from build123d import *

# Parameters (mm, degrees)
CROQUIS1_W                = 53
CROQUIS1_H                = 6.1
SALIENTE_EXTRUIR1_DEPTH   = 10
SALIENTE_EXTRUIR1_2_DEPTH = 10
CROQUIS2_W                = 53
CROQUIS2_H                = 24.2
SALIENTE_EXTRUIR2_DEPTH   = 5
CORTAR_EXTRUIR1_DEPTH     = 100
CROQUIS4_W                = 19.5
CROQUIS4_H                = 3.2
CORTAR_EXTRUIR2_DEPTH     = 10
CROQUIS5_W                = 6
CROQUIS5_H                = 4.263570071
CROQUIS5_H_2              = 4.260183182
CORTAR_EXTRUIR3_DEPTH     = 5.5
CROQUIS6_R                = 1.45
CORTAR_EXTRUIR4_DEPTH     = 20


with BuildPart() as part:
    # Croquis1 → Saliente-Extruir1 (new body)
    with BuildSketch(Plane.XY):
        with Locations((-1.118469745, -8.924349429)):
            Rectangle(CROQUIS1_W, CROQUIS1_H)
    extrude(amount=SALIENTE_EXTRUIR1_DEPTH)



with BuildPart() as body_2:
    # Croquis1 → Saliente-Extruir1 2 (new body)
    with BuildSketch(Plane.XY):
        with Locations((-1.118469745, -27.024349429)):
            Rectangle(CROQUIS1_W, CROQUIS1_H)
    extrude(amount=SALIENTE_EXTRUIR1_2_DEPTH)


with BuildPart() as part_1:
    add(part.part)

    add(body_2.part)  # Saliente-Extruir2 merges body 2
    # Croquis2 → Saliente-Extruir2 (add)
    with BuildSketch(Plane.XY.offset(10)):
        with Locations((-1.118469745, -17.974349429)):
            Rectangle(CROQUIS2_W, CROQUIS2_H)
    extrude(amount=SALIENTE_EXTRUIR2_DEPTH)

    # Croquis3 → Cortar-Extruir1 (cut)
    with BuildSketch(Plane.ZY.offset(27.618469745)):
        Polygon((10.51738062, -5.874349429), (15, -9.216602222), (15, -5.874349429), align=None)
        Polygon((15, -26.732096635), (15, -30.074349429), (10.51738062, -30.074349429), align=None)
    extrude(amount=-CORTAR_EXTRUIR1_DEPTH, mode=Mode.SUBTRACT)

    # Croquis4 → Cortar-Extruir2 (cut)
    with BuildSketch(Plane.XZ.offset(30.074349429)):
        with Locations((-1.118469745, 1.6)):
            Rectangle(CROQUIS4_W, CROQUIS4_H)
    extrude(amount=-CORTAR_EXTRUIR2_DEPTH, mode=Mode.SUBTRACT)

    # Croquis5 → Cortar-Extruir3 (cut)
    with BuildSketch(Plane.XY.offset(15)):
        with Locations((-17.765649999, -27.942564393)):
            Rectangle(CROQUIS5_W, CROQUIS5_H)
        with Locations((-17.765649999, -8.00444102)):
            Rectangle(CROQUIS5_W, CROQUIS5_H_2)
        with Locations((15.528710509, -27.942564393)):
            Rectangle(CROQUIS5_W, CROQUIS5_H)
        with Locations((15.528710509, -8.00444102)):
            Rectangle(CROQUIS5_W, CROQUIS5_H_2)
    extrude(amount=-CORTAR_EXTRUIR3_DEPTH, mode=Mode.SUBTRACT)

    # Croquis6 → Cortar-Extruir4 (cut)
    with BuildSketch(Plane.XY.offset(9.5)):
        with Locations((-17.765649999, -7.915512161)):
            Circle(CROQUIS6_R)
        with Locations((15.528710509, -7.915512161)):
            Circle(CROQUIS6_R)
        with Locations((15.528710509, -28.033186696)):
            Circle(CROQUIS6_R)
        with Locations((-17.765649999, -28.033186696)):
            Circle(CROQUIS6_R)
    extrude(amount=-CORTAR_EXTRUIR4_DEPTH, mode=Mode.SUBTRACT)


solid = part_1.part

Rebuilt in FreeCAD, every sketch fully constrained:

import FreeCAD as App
import Part
import Sketcher


def add_polygon(sketch, points):
    """Adds a closed chain of lines whose ends are joined by coincident constraints."""
    first, n = sketch.GeometryCount, len(points)
    for a, b in zip(points, points[1:] + points[:1]):
        sketch.addGeometry(Part.LineSegment(App.Vector(*a, 0), App.Vector(*b, 0)), False)
    for i in range(n):
        sketch.addConstraint(Sketcher.Constraint("Coincident", first + i, 2, first + (i + 1) % n, 1))

doc = App.newDocument("Part")
params = doc.addObject("Spreadsheet::Sheet", "Params")
for row, (alias, value) in enumerate([
    ("sketch1_width", "53 mm"),
    ("sketch1_height", "6.1 mm"),
    ("pad1_length", "10 mm"),
    ("sketch2_width", "53 mm"),
    ("sketch2_height", "6.1 mm"),
    ("pad2_length", "10 mm"),
    ("sketch3_width", "53 mm"),
    ("sketch3_height", "24.2 mm"),
    ("pad3_length", "5 mm"),
    ("pocket1_length", "100 mm"),
    ("sketch5_width", "19.5 mm"),
    ("sketch5_height", "3.2 mm"),
    ("pocket2_length", "10 mm"),
    ("sketch6_width", "6 mm"),
    ("pocket3_length", "5.5 mm"),
    ("sketch7_diameter", "2.9 mm"),
    ("pocket4_length", "20 mm"),
], start=1):
    params.set(f"A{row}", alias)
    params.set(f"B{row}", "=" + value)
    params.setAlias(f"B{row}", alias)

body = doc.addObject("PartDesign::Body", "Body")

# Sketch on XY plane
sketch1 = body.newObject("Sketcher::SketchObject", "Sketch")
sketch1.AttachmentSupport = (doc.getObject("XY_Plane"), [""])
sketch1.MapMode = "FlatFace"
add_polygon(sketch1, [(-28, -6), (-28, -12), (25, -12), (25, -6)])  # lines 0-3
sketch1.addConstraint(Sketcher.Constraint("Vertical", 0))
sketch1.addConstraint(Sketcher.Constraint("Horizontal", 1))
sketch1.addConstraint(Sketcher.Constraint("Vertical", 2))
sketch1.addConstraint(Sketcher.Constraint("Horizontal", 3))
sketch1.addConstraint(Sketcher.Constraint("DistanceX", 1, 1, 1, 2, 53.0))
sketch1.addConstraint(Sketcher.Constraint("DistanceY", 0, 2, 0, 1, 6.1))
sketch1.addConstraint(Sketcher.Constraint("DistanceX", 0, 2, -1, 1, 27.61847))
sketch1.addConstraint(Sketcher.Constraint("DistanceY", 0, 2, -1, 1, 11.974349))
sketch1.setExpression("Constraints[8]", "Params.sketch1_width")
sketch1.setExpression("Constraints[9]", "Params.sketch1_height")
pad1 = body.newObject("PartDesign::Pad", "Pad")
pad1.Profile = sketch1
pad1.setExpression("Length", "Params.pad1_length")
body2 = doc.addObject("PartDesign::Body", "Body001")

# Sketch on XY plane
sketch2 = body2.newObject("Sketcher::SketchObject", "Sketch001")
sketch2.AttachmentSupport = (doc.getObject("XY_Plane001"), [""])
sketch2.MapMode = "FlatFace"
add_polygon(sketch2, [(-28, -24), (-28, -30), (25, -30), (25, -24)])  # lines 0-3
sketch2.addConstraint(Sketcher.Constraint("Vertical", 0))
sketch2.addConstraint(Sketcher.Constraint("Horizontal", 1))
sketch2.addConstraint(Sketcher.Constraint("Vertical", 2))
sketch2.addConstraint(Sketcher.Constraint("Horizontal", 3))
sketch2.addConstraint(Sketcher.Constraint("DistanceX", 1, 1, 1, 2, 53.0))
sketch2.addConstraint(Sketcher.Constraint("DistanceY", 0, 2, 0, 1, 6.1))
sketch2.addConstraint(Sketcher.Constraint("DistanceX", 0, 2, -1, 1, 27.61847))
sketch2.addConstraint(Sketcher.Constraint("DistanceY", 0, 2, -1, 1, 30.074349))
sketch2.setExpression("Constraints[8]", "Params.sketch2_width")
sketch2.setExpression("Constraints[9]", "Params.sketch2_height")
pad2 = body2.newObject("PartDesign::Pad", "Pad001")
pad2.Profile = sketch2
pad2.setExpression("Length", "Params.pad2_length")
body.AllowCompound = True
doc.recompute()

boolean = body.newObject("PartDesign::Boolean", "Boolean")
boolean.Type = "Fuse"
boolean.addObjects([body2])

# Sketch on XY plane
sketch3 = body.newObject("Sketcher::SketchObject", "Sketch002")
sketch3.AttachmentSupport = (doc.getObject("XY_Plane"), [""])
sketch3.MapMode = "FlatFace"
sketch3.AttachmentOffset = App.Placement(App.Vector(0, 0, 10), App.Rotation())
add_polygon(sketch3, [(-28, -6), (-28, -30), (25, -30), (25, -6)])  # lines 0-3
sketch3.addConstraint(Sketcher.Constraint("Vertical", 0))
sketch3.addConstraint(Sketcher.Constraint("Horizontal", 1))
sketch3.addConstraint(Sketcher.Constraint("Vertical", 2))
sketch3.addConstraint(Sketcher.Constraint("Horizontal", 3))
sketch3.addConstraint(Sketcher.Constraint("DistanceX", 1, 1, 1, 2, 53.0))
sketch3.addConstraint(Sketcher.Constraint("DistanceY", 0, 2, 0, 1, 24.2))
sketch3.addConstraint(Sketcher.Constraint("DistanceX", 0, 2, -1, 1, 27.61847))
sketch3.addConstraint(Sketcher.Constraint("DistanceY", 0, 2, -1, 1, 30.074349))
sketch3.setExpression("Constraints[8]", "Params.sketch3_width")
sketch3.setExpression("Constraints[9]", "Params.sketch3_height")
pad3 = body.newObject("PartDesign::Pad", "Pad002")
pad3.Profile = sketch3
pad3.setExpression("Length", "Params.pad3_length")

# Sketch on YZ plane
sketch4 = body.newObject("Sketcher::SketchObject", "Sketch003")
sketch4.AttachmentSupport = (doc.getObject("YZ_Plane"), [""])
sketch4.MapMode = "FlatFace"
sketch4.AttachmentOffset = App.Placement(App.Vector(0, 0, -27.61847), App.Rotation())
add_polygon(sketch4, [(-5.9, 10.5), (-9.2, 15), (-5.9, 15)])  # lines 0-2
add_polygon(sketch4, [(-30.1, 15), (-26.7, 15), (-30.1, 10.5)])  # lines 3-5
sketch4.addConstraint(Sketcher.Constraint("Horizontal", 1))
sketch4.addConstraint(Sketcher.Constraint("Vertical", 2))
sketch4.addConstraint(Sketcher.Constraint("Horizontal", 3))
sketch4.addConstraint(Sketcher.Constraint("Vertical", 5))
sketch4.addConstraint(Sketcher.Constraint("Horizontal", 1, 2, 3, 2))
sketch4.addConstraint(Sketcher.Constraint("Horizontal", 2, 2, 4, 2))
sketch4.addConstraint(Sketcher.Constraint("Equal", 1, 3))
sketch4.addConstraint(Sketcher.Constraint("DistanceY", -1, 1, 0, 2, 15.0))
sketch4.addConstraint(Sketcher.Constraint("DistanceX", 4, 2, 2, 2, 24.2))
sketch4.addConstraint(Sketcher.Constraint("DistanceY", 2, 2, 2, 1, 4.482619))
sketch4.addConstraint(Sketcher.Constraint("Distance", 0, 5.591469))
sketch4.addConstraint(Sketcher.Constraint("DistanceX", 1, 2, -1, 1, 5.874349))
pocket1 = body.newObject("PartDesign::Pocket", "Pocket")
pocket1.Profile = sketch4
pocket1.setExpression("Length", "Params.pocket1_length")
pocket1.Reversed = True

# Sketch on XZ plane
sketch5 = body.newObject("Sketcher::SketchObject", "Sketch004")
sketch5.AttachmentSupport = (doc.getObject("XZ_Plane"), [""])
sketch5.MapMode = "FlatFace"
sketch5.AttachmentOffset = App.Placement(App.Vector(0, 0, 30.074349), App.Rotation())
add_polygon(sketch5, [(-10.9, 3.2), (-10.9, 0), (8.6, 0), (8.6, 3.2)])  # lines 0-3
sketch5.addConstraint(Sketcher.Constraint("Vertical", 0))
sketch5.addConstraint(Sketcher.Constraint("Horizontal", 1))
sketch5.addConstraint(Sketcher.Constraint("Vertical", 2))
sketch5.addConstraint(Sketcher.Constraint("Horizontal", 3))
sketch5.addConstraint(Sketcher.Constraint("PointOnObject", 0, 2, -1))
sketch5.addConstraint(Sketcher.Constraint("DistanceX", 1, 1, 1, 2, 19.5))
sketch5.addConstraint(Sketcher.Constraint("DistanceY", 0, 2, 0, 1, 3.2))
sketch5.addConstraint(Sketcher.Constraint("DistanceX", 0, 2, -1, 1, 10.86847))
sketch5.setExpression("Constraints[9]", "Params.sketch5_width")
sketch5.setExpression("Constraints[10]", "Params.sketch5_height")
pocket2 = body.newObject("PartDesign::Pocket", "Pocket001")
pocket2.Profile = sketch5
pocket2.setExpression("Length", "Params.pocket2_length")

# Sketch on XY plane
sketch6 = body.newObject("Sketcher::SketchObject", "Sketch005")
sketch6.AttachmentSupport = (doc.getObject("XY_Plane"), [""])
sketch6.MapMode = "FlatFace"
sketch6.AttachmentOffset = App.Placement(App.Vector(0, 0, 15), App.Rotation())
add_polygon(sketch6, [(-20.8, -25.8), (-20.8, -30.1), (-14.8, -30.1), (-14.8, -25.8)])  # lines 0-3
add_polygon(sketch6, [(-20.8, -5.9), (-20.8, -10.1), (-14.8, -10.1), (-14.8, -5.9)])  # lines 4-7
add_polygon(sketch6, [(12.5, -25.8), (12.5, -30.1), (18.5, -30.1), (18.5, -25.8)])  # lines 8-11
add_polygon(sketch6, [(12.5, -5.9), (12.5, -10.1), (18.5, -10.1), (18.5, -5.9)])  # lines 12-15
sketch6.addConstraint(Sketcher.Constraint("Vertical", 0))
sketch6.addConstraint(Sketcher.Constraint("Horizontal", 1))
sketch6.addConstraint(Sketcher.Constraint("Vertical", 2))
sketch6.addConstraint(Sketcher.Constraint("Horizontal", 3))
sketch6.addConstraint(Sketcher.Constraint("Vertical", 4))
sketch6.addConstraint(Sketcher.Constraint("Horizontal", 5))
sketch6.addConstraint(Sketcher.Constraint("Vertical", 6))
sketch6.addConstraint(Sketcher.Constraint("Horizontal", 7))
sketch6.addConstraint(Sketcher.Constraint("Vertical", 8))
sketch6.addConstraint(Sketcher.Constraint("Horizontal", 9))
sketch6.addConstraint(Sketcher.Constraint("Vertical", 10))
sketch6.addConstraint(Sketcher.Constraint("Horizontal", 11))
sketch6.addConstraint(Sketcher.Constraint("Vertical", 12))
sketch6.addConstraint(Sketcher.Constraint("Horizontal", 13))
sketch6.addConstraint(Sketcher.Constraint("Vertical", 14))
sketch6.addConstraint(Sketcher.Constraint("Horizontal", 15))
sketch6.addConstraint(Sketcher.Constraint("Horizontal", 1, 2, 8, 2))
sketch6.addConstraint(Sketcher.Constraint("Horizontal", 3, 2, 10, 2))
sketch6.addConstraint(Sketcher.Constraint("Horizontal", 5, 2, 12, 2))
sketch6.addConstraint(Sketcher.Constraint("Horizontal", 7, 2, 14, 2))
sketch6.addConstraint(Sketcher.Constraint("Vertical", 3, 2, 4, 2))
sketch6.addConstraint(Sketcher.Constraint("Vertical", 2, 2, 5, 2))
sketch6.addConstraint(Sketcher.Constraint("Vertical", 11, 2, 12, 2))
sketch6.addConstraint(Sketcher.Constraint("Vertical", 10, 2, 13, 2))
sketch6.addConstraint(Sketcher.Constraint("Equal", 7, 9))
sketch6.addConstraint(Sketcher.Constraint("DistanceX", 1, 1, 1, 2, 6.0))
sketch6.addConstraint(Sketcher.Constraint("DistanceY", 1, 2, 6, 2, 24.2))
sketch6.addConstraint(Sketcher.Constraint("DistanceY", 0, 2, 0, 1, 4.26357))
sketch6.addConstraint(Sketcher.Constraint("DistanceY", 4, 2, 4, 1, 4.260183))
sketch6.addConstraint(Sketcher.Constraint("DistanceX", 0, 2, -1, 1, 20.76565))
sketch6.addConstraint(Sketcher.Constraint("DistanceY", 0, 2, -1, 1, 30.074349))
sketch6.addConstraint(Sketcher.Constraint("DistanceX", -1, 1, 8, 2, 12.528711))
sketch6.setExpression("Constraints[41]", "Params.sketch6_width")
pocket3 = body.newObject("PartDesign::Pocket", "Pocket002")
pocket3.Profile = sketch6
pocket3.setExpression("Length", "Params.pocket3_length")

# Sketch on XY plane
sketch7 = body.newObject("Sketcher::SketchObject", "Sketch006")
sketch7.AttachmentSupport = (doc.getObject("XY_Plane"), [""])
sketch7.MapMode = "FlatFace"
sketch7.AttachmentOffset = App.Placement(App.Vector(0, 0, 9.5), App.Rotation())
sketch7.addGeometry(Part.Circle(App.Vector(-17.8, -7.9, 0), App.Vector(0, 0, 1), 1.4), False)
sketch7.addGeometry(Part.Circle(App.Vector(15.5, -7.9, 0), App.Vector(0, 0, 1), 1.4), False)
sketch7.addGeometry(Part.Circle(App.Vector(15.5, -28, 0), App.Vector(0, 0, 1), 1.4), False)
sketch7.addGeometry(Part.Circle(App.Vector(-17.8, -28, 0), App.Vector(0, 0, 1), 1.4), False)
sketch7.addConstraint(Sketcher.Constraint("Equal", 0, 1))
sketch7.addConstraint(Sketcher.Constraint("Equal", 1, 2))
sketch7.addConstraint(Sketcher.Constraint("Equal", 2, 3))
sketch7.addConstraint(Sketcher.Constraint("Horizontal", 0, 3, 1, 3))
sketch7.addConstraint(Sketcher.Constraint("Horizontal", 2, 3, 3, 3))
sketch7.addConstraint(Sketcher.Constraint("Vertical", 1, 3, 2, 3))
sketch7.addConstraint(Sketcher.Constraint("Vertical", 0, 3, 3, 3))
sketch7.addConstraint(Sketcher.Constraint("Diameter", 0, 2.9))
sketch7.addConstraint(Sketcher.Constraint("DistanceX", 0, 3, -1, 1, 17.76565))
sketch7.addConstraint(Sketcher.Constraint("DistanceX", -1, 1, 1, 3, 15.528711))
sketch7.addConstraint(Sketcher.Constraint("DistanceY", 0, 3, -1, 1, 7.915512))
sketch7.addConstraint(Sketcher.Constraint("DistanceY", 2, 3, -1, 1, 28.033187))
sketch7.setExpression("Constraints[7]", "Params.sketch7_diameter")
pocket4 = body.newObject("PartDesign::Pocket", "Pocket003")
pocket4.Profile = sketch7
pocket4.setExpression("Length", "Params.pocket4_length")

doc.recompute()
